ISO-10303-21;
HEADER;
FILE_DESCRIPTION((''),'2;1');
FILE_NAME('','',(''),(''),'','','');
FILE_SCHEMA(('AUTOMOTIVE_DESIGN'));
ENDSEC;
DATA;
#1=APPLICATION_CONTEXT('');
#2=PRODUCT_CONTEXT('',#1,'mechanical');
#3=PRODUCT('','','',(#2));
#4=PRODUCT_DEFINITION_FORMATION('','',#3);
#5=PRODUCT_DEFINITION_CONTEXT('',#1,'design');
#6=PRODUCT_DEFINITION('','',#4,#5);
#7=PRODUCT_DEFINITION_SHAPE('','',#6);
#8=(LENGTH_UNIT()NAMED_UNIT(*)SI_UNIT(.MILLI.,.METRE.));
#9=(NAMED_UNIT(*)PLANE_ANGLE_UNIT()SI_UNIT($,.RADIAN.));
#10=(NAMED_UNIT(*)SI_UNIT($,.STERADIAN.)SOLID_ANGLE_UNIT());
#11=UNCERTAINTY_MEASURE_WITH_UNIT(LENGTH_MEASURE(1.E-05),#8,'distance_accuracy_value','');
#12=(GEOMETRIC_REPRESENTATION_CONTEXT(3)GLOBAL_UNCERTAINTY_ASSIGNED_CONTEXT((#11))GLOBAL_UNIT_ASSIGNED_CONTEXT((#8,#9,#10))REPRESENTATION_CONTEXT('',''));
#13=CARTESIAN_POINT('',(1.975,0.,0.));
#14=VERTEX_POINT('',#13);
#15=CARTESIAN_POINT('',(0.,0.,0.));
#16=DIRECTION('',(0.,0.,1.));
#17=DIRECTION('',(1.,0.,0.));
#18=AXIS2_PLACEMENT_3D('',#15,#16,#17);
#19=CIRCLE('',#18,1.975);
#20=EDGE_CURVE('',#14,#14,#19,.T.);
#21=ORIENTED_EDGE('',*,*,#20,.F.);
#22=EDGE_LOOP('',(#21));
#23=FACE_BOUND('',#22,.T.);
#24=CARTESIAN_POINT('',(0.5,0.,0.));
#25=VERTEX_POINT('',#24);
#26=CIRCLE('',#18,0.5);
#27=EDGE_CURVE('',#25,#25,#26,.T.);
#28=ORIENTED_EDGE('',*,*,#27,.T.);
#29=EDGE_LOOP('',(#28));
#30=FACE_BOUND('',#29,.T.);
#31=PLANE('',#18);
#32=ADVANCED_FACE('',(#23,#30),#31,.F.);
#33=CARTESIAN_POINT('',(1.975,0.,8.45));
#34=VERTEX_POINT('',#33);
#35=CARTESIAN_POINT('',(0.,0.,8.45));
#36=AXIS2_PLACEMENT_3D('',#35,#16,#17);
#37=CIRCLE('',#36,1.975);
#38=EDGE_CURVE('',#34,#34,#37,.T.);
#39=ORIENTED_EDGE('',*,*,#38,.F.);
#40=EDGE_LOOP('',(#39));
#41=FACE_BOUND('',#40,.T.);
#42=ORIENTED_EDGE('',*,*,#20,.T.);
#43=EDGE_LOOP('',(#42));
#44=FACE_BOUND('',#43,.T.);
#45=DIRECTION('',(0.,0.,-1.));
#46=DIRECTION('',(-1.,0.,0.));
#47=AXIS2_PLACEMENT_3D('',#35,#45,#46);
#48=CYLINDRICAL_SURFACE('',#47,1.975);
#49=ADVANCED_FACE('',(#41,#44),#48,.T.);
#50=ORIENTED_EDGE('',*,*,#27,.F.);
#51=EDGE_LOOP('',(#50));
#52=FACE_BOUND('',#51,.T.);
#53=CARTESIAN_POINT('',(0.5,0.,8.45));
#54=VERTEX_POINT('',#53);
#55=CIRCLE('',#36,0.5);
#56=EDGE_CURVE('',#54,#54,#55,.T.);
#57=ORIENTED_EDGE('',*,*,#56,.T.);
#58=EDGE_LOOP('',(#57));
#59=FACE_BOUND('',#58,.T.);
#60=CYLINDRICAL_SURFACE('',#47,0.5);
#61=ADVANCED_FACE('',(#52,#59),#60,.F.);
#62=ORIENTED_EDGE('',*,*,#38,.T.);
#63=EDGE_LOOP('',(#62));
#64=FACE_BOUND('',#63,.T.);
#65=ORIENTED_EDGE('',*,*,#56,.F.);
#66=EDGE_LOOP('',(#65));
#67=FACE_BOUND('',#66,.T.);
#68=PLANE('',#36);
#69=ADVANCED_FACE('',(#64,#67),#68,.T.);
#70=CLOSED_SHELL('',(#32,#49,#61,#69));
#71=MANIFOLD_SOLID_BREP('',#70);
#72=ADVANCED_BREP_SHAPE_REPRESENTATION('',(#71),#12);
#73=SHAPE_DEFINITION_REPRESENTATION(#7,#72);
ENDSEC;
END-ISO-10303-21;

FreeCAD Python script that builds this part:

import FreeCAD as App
import Part
import Sketcher
Q = App.Units.Quantity

doc = App.newDocument("Part")
params = doc.addObject("Spreadsheet::Sheet", "Params")
for row, (alias, value) in enumerate([
    ("sketch1_diameter", "1 mm"),
    ("sketch1_diameter2", "3.95 mm"),
    ("pad1_length", "8.45 mm"),
], start=1):
    params.set(f"A{row}", alias)
    params.set(f"B{row}", "=" + value)
    params.setAlias(f"B{row}", alias)

body = doc.addObject("PartDesign::Body", "Body")

# Sketch on XY plane
sketch1 = body.newObject("Sketcher::SketchObject", "Sketch")
sketch1.AttachmentSupport = (doc.getObject("XY_Plane"), [""])
sketch1.MapMode = "FlatFace"
sketch1.addGeometry([
    Part.Circle(App.Vector(0, 0, 0), App.Vector(0, 0, 1), 1.975),
    Part.Circle(App.Vector(0, 0, 0), App.Vector(0, 0, 1), 0.5),
], False)
sketch1.addConstraint([
    Sketcher.Constraint("Coincident", 0, 3, -1, 1),
    Sketcher.Constraint("Coincident", 1, 3, -1, 1),
    Sketcher.Constraint("Diameter", 1, Q("1 mm")),
    Sketcher.Constraint("Diameter", 0, Q("3.95 mm")),
])
sketch1.setExpression("Constraints[2]", "Params.sketch1_diameter")
sketch1.setExpression("Constraints[3]", "Params.sketch1_diameter2")
pad1 = body.newObject("PartDesign::Pad", "Pad")
pad1.Profile = sketch1
pad1.setExpression("Length", "Params.pad1_length")

doc.recompute()
